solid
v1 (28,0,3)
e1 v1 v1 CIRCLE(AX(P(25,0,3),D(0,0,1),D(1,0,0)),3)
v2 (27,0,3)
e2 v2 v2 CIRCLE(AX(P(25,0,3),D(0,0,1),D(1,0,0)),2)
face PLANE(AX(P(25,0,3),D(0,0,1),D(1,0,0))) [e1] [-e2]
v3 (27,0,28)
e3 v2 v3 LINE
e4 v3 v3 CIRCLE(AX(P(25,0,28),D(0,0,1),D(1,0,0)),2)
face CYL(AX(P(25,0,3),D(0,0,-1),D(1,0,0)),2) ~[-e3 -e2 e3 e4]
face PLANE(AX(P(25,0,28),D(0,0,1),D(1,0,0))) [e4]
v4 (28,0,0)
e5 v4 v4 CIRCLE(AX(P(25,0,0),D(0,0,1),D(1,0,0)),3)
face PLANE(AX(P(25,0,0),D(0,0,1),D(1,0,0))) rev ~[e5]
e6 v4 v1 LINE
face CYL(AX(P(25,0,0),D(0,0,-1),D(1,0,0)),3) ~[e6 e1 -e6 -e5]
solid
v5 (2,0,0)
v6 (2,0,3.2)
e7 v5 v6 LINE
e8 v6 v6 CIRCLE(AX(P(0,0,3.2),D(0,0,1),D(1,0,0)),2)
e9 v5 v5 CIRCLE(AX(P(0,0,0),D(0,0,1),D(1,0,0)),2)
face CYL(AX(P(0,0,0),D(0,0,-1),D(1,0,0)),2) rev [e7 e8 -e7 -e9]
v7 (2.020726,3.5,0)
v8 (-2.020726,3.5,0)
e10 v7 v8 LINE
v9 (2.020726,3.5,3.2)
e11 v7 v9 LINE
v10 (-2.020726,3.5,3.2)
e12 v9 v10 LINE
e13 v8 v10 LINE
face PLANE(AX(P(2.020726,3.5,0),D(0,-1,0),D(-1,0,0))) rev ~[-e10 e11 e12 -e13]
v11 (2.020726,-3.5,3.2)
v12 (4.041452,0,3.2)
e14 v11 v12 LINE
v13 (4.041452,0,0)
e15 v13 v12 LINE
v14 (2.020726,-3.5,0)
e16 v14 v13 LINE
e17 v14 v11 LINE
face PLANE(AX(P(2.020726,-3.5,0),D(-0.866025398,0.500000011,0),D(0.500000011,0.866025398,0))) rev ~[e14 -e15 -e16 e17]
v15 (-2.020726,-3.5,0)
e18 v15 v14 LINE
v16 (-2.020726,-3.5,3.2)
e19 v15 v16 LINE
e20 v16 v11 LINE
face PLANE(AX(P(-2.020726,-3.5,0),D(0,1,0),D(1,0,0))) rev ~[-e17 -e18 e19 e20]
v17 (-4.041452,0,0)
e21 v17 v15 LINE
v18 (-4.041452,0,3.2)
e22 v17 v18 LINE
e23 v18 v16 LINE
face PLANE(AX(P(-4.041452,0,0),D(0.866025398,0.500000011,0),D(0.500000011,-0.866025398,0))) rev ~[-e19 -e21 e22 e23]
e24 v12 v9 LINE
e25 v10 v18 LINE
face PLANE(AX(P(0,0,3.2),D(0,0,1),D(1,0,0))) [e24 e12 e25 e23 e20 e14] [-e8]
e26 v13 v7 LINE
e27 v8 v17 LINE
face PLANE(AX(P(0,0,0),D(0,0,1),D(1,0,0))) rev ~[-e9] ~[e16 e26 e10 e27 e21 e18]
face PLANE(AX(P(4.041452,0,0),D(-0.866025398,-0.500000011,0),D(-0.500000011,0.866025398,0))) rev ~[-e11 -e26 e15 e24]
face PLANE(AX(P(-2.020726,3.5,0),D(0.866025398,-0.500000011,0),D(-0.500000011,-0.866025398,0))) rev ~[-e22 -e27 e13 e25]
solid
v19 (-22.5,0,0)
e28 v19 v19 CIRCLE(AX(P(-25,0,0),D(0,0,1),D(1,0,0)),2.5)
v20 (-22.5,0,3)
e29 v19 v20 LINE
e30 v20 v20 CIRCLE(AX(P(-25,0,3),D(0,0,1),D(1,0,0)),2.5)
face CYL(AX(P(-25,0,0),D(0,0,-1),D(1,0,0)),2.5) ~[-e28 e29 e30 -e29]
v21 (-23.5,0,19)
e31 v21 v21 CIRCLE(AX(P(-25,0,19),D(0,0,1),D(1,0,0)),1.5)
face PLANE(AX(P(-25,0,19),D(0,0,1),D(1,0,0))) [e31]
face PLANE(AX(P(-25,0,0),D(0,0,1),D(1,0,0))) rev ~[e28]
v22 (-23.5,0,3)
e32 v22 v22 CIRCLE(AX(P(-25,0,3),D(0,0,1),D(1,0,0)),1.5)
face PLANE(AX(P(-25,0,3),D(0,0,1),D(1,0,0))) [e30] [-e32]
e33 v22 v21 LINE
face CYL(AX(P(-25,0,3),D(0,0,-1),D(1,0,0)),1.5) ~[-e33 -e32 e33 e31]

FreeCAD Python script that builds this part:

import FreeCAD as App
import Part
import Sketcher

V = App.Vector
Q = App.Units.Quantity


def add_polygon(sketch, points):
    """Adds a closed chain of lines whose ends are joined by coincident constraints."""
    first, n = sketch.GeometryCount, len(points)
    for a, b in zip(points, points[1:] + points[:1]):
        sketch.addGeometry(Part.LineSegment(App.Vector(*a, 0), App.Vector(*b, 0)), False)
    for i in range(n):
        sketch.addConstraint(Sketcher.Constraint("Coincident", first + i, 2, first + (i + 1) % n, 1))

doc = App.newDocument("Part")
params = doc.addObject("Spreadsheet::Sheet", "Params")
for row, (alias, value) in enumerate([
    ("sketch1_diameter", "5 mm"),
    ("pad1_length", "3 mm"),
    ("sketch2_diameter", "3 mm"),
    ("pad2_length", "16 mm"),
    ("sketch3_diameter", "6 mm"),
    ("pad3_length", "3 mm"),
    ("sketch4_diameter", "4 mm"),
    ("pad4_length", "25 mm"),
    ("sketch5_diameter", "4 mm"),
    ("pad5_length", "3.2 mm"),
], start=1):
    params.set(f"A{row}", alias)
    params.set(f"B{row}", "=" + value)
    params.setAlias(f"B{row}", alias)

body = doc.addObject("PartDesign::Body", "Body")

# Sketch on XY plane
sketch1 = body.newObject("Sketcher::SketchObject", "Sketch")
sketch1.AttachmentSupport = (doc.getObject("XY_Plane"), [""])
sketch1.MapMode = "FlatFace"
sketch1.addGeometry(Part.Circle(V(-25, 0, 0), V(0, 0, 1), 2.5), False)
sketch1.addConstraint([
    Sketcher.Constraint("PointOnObject", 0, 3, -1),
    Sketcher.Constraint("Diameter", 0, 5.0),
    Sketcher.Constraint("DistanceX", 0, 3, -1, 1, 25.0),
])
sketch1.setExpression("Constraints[1]", "Params.sketch1_diameter")
pad1 = body.newObject("PartDesign::Pad", "Pad")
pad1.Profile = sketch1
pad1.setExpression("Length", "Params.pad1_length")

# Sketch on XY plane
sketch2 = body.newObject("Sketcher::SketchObject", "Sketch001")
sketch2.AttachmentSupport = (doc.getObject("XY_Plane"), [""])
sketch2.MapMode = "FlatFace"
sketch2.AttachmentOffset = App.Placement(V(0, 0, 3), App.Rotation())
sketch2.addGeometry(Part.Circle(V(-25, 0, 0), V(0, 0, 1), 1.5), False)
sketch2.addConstraint([
    Sketcher.Constraint("PointOnObject", 0, 3, -1),
    Sketcher.Constraint("Diameter", 0, 3.0),
    Sketcher.Constraint("DistanceX", 0, 3, -1, 1, 25.0),
])
sketch2.setExpression("Constraints[1]", "Params.sketch2_diameter")
pad2 = body.newObject("PartDesign::Pad", "Pad001")
pad2.Profile = sketch2
pad2.setExpression("Length", "Params.pad2_length")
body2 = doc.addObject("PartDesign::Body", "Body001")

# Sketch on XY plane
sketch3 = body2.newObject("Sketcher::SketchObject", "Sketch002")
sketch3.AttachmentSupport = (doc.getObject("XY_Plane001"), [""])
sketch3.MapMode = "FlatFace"
sketch3.addGeometry(Part.Circle(V(25, 0, 0), V(0, 0, 1), 3), False)
sketch3.addConstraint([
    Sketcher.Constraint("PointOnObject", 0, 3, -1),
    Sketcher.Constraint("Diameter", 0, 6.0),
    Sketcher.Constraint("DistanceX", -1, 1, 0, 3, 25.0),
])
sketch3.setExpression("Constraints[1]", "Params.sketch3_diameter")
pad3 = body2.newObject("PartDesign::Pad", "Pad002")
pad3.Profile = sketch3
pad3.setExpression("Length", "Params.pad3_length")

# Sketch on XY plane
sketch4 = body2.newObject("Sketcher::SketchObject", "Sketch003")
sketch4.AttachmentSupport = (doc.getObject("XY_Plane001"), [""])
sketch4.MapMode = "FlatFace"
sketch4.AttachmentOffset = App.Placement(V(0, 0, 3), App.Rotation())
sketch4.addGeometry(Part.Circle(V(25, 0, 0), V(0, 0, 1), 2), False)
sketch4.addConstraint([
    Sketcher.Constraint("PointOnObject", 0, 3, -1),
    Sketcher.Constraint("Diameter", 0, 4.0),
    Sketcher.Constraint("DistanceX", -1, 1, 0, 3, 25.0),
])
sketch4.setExpression("Constraints[1]", "Params.sketch4_diameter")
pad4 = body2.newObject("PartDesign::Pad", "Pad003")
pad4.Profile = sketch4
pad4.setExpression("Length", "Params.pad4_length")
body3 = doc.addObject("PartDesign::Body", "Body002")

# Sketch on XY plane
sketch5 = body3.newObject("Sketcher::SketchObject", "Sketch004")
sketch5.AttachmentSupport = (doc.getObject("XY_Plane002"), [""])
sketch5.MapMode = "FlatFace"
add_polygon(sketch5, [(2, 3.5), (-2, 3.5), (-4, 0), (-2, -3.5), (2, -3.5), (4, 0)])  # lines 0-5
sketch5.addGeometry(Part.Circle(V(0, 0, 0), V(0, 0, 1), 2), False)  # 6
sketch5.addConstraint([
    Sketcher.Constraint("Horizontal", 0),
    Sketcher.Constraint("Horizontal", 3),
    Sketcher.Constraint("Coincident", 6, 3, -1, 1),
    Sketcher.Constraint("Symmetric", 0, 2, 3, 2, -1, 1),
    Sketcher.Constraint("Symmetric", 1, 2, 4, 2, -1, 1),
    Sketcher.Constraint("PointOnObject", 1, 2, -1),
    Sketcher.Constraint("Parallel", 2, 5),
    Sketcher.Constraint("Vertical", 0, 2, 2, 2),
    Sketcher.Constraint("Diameter", 6, 4.0),
    Sketcher.Constraint("Angle", 1, Q("-120.000001 deg")),
    Sketcher.Constraint("DistanceY", 2, 2, 0, 2, 7.0),
    Sketcher.Constraint("DistanceX", 0, 2, 0, 1, 4.041452),
])
sketch5.setExpression("Constraints[14]", "Params.sketch5_diameter")
pad5 = body3.newObject("PartDesign::Pad", "Pad004")
pad5.Profile = sketch5
pad5.setExpression("Length", "Params.pad5_length")

doc.recompute()
